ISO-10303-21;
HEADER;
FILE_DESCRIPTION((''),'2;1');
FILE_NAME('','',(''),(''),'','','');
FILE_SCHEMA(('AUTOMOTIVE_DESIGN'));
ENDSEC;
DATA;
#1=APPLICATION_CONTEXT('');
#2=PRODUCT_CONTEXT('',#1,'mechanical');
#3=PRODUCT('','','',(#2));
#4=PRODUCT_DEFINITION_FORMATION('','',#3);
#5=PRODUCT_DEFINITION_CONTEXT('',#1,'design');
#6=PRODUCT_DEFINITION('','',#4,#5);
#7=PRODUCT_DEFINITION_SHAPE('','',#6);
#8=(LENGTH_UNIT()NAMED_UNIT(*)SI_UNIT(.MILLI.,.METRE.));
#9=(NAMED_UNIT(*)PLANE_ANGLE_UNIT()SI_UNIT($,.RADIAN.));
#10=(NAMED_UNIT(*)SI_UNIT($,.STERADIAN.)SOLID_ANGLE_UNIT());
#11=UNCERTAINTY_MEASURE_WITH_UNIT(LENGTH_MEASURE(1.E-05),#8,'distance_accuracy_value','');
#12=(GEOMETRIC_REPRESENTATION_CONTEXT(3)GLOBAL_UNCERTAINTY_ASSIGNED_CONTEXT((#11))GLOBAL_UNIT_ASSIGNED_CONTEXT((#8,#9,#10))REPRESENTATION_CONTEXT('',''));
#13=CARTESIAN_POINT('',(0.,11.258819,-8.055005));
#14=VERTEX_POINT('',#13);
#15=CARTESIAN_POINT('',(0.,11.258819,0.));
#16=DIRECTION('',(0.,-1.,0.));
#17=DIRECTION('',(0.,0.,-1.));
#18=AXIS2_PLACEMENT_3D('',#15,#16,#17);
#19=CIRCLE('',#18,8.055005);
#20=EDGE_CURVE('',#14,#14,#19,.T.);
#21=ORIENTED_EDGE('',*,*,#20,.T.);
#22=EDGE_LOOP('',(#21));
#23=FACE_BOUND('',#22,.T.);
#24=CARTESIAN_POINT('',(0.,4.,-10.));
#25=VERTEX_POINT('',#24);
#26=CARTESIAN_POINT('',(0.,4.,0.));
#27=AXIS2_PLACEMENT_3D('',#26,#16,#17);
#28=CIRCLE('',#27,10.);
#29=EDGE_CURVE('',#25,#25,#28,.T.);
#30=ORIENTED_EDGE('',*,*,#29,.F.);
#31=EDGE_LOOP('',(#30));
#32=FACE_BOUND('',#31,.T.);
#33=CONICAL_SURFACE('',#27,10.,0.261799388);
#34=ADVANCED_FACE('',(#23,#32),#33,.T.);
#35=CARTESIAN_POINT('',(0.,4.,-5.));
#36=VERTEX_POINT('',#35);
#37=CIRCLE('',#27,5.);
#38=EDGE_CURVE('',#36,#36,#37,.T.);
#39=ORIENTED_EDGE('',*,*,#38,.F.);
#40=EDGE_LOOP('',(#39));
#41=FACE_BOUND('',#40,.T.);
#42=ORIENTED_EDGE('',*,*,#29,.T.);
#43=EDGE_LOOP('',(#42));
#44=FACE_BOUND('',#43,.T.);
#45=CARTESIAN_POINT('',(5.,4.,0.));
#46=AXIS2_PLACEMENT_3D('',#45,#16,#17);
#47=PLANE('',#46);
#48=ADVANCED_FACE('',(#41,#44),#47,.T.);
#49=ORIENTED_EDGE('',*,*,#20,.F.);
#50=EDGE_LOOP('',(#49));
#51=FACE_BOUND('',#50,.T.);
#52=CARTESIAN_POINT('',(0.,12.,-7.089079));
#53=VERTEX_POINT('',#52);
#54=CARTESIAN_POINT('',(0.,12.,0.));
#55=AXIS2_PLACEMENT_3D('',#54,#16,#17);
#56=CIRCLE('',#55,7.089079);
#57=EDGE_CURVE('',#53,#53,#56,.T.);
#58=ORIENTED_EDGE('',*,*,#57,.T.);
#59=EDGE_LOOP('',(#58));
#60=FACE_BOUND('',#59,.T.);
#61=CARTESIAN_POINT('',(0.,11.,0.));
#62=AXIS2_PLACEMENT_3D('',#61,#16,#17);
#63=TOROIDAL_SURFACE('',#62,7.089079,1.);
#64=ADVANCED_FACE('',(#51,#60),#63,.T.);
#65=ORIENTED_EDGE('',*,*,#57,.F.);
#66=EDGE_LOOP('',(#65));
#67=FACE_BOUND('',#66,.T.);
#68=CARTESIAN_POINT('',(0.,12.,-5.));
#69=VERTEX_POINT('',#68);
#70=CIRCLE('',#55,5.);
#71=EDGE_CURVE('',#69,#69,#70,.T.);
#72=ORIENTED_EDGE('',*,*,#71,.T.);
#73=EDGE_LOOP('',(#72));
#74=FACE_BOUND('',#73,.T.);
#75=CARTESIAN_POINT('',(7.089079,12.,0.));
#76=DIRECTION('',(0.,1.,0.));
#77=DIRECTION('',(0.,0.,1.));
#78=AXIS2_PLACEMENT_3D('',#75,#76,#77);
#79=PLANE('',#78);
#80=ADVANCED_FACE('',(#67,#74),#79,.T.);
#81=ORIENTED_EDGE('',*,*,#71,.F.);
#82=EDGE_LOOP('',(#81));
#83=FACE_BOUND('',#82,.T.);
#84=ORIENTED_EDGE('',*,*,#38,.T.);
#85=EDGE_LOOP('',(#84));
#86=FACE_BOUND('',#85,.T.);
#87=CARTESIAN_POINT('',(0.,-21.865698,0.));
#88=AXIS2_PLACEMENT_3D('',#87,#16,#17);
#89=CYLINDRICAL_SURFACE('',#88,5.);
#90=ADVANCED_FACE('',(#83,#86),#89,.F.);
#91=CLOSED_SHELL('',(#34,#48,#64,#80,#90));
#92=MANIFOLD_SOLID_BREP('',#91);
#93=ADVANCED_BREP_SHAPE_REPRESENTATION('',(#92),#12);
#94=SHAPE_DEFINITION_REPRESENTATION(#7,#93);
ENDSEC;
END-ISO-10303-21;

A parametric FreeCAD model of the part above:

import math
import FreeCAD as App
import Part
import Sketcher
from FreeCAD import Vector
Q = App.Units.Quantity

doc = App.newDocument("Part")
body = doc.addObject("PartDesign::Body", "Body")

# Sketch on XY plane
sketch1 = doc.addObject("Sketcher::SketchObject", "Sketch")
body.addObject(sketch1)
sketch1.AttachmentSupport = (doc.XY_Plane, [""])
sketch1.MapMode = "FlatFace"
sketch1.addGeometry(Part.LineSegment(Vector(5, 4, 0), Vector(10, 4, 0)), False)
sketch1.addGeometry(Part.LineSegment(Vector(10, 4, 0), Vector(8.1, 11.3, 0)), False)
sketch1.addGeometry(Part.ArcOfCircle(Part.Circle(Vector(7.1, 11, 0), Vector(0, 0, 1), 1), math.radians(15), math.radians(90)), False)
sketch1.addGeometry(Part.LineSegment(Vector(7.1, 12, 0), Vector(5, 12, 0)), False)
sketch1.addGeometry(Part.LineSegment(Vector(5, 12, 0), Vector(5, 4, 0)), False)
sketch1.addConstraint(Sketcher.Constraint("Coincident", 0, 2, 1, 1))
sketch1.addConstraint(Sketcher.Constraint("Tangent", 1, 2, 2, 1))
sketch1.addConstraint(Sketcher.Constraint("Tangent", 2, 2, 3, 1))
sketch1.addConstraint(Sketcher.Constraint("Coincident", 3, 2, 4, 1))
sketch1.addConstraint(Sketcher.Constraint("Coincident", 4, 2, 0, 1))
sketch1.addConstraint(Sketcher.Constraint("Horizontal", 0))
sketch1.addConstraint(Sketcher.Constraint("Horizontal", 3))
sketch1.addConstraint(Sketcher.Constraint("Vertical", 4))
sketch1.addConstraint(Sketcher.Constraint("Radius", 2, Q("1 mm")))
sketch1.addConstraint(Sketcher.Constraint("DistanceX", 0, 1, 0, 2, Q("5 mm")))
sketch1.addConstraint(Sketcher.Constraint("DistanceY", 4, 2, 4, 1, Q("8 mm")))
sketch1.addConstraint(Sketcher.Constraint("Angle", 1, Q("105 deg")))
sketch1.addConstraint(Sketcher.Constraint("DistanceY", -1, 1, 2, 3, Q("11 mm")))
sketch1.addConstraint(Sketcher.Constraint("DistanceX", -1, 1, 0, 2, Q("10 mm")))
revolution = doc.addObject("PartDesign::Revolution", "Revolution")
body.addObject(revolution)
revolution.Profile = sketch1
revolution.ReferenceAxis = (sketch1, ["V_Axis"])
revolution.Angle = 360

doc.recompute()
